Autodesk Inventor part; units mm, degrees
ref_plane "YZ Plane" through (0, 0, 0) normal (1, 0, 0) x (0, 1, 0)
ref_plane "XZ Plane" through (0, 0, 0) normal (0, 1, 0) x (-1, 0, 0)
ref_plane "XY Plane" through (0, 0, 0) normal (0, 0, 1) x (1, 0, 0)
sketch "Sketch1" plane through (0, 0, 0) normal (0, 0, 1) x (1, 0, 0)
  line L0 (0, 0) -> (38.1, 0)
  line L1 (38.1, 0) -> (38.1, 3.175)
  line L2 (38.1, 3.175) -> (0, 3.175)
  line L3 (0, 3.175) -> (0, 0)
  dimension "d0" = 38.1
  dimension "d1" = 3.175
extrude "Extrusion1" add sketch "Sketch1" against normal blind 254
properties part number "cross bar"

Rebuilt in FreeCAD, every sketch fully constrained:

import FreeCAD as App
import Part
import Sketcher

V = App.Vector
Q = App.Units.Quantity


def add_polygon(sketch, points):
    """Adds a closed chain of lines whose ends are joined by coincident constraints."""
    first, n = sketch.GeometryCount, len(points)
    for a, b in zip(points, points[1:] + points[:1]):
        sketch.addGeometry(Part.LineSegment(App.Vector(*a, 0), App.Vector(*b, 0)), False)
    for i in range(n):
        sketch.addConstraint(Sketcher.Constraint("Coincident", first + i, 2, first + (i + 1) % n, 1))

doc = App.newDocument("Part")
params = doc.addObject("Spreadsheet::Sheet", "Params")
for row, (alias, value) in enumerate([
    ("sketch1_width", "1.5 in"),
    ("sketch1_height", "0.125 in"),
    ("pad1_length", "10 in"),
], start=1):
    params.set(f"A{row}", alias)
    params.set(f"B{row}", "=" + value)
    params.setAlias(f"B{row}", alias)

body = doc.addObject("PartDesign::Body", "Body")

sketch1 = body.newObject("Sketcher::SketchObject", "Sketch")
sketch1.AttachmentSupport = (doc.getObject("XY_Plane"), [""])
sketch1.MapMode = "FlatFace"
add_polygon(sketch1, [(0, 3.175), (0, 0), (38.1, 0), (38.1, 3.175)])
sketch1.addConstraint(Sketcher.Constraint("Vertical", 0))
sketch1.addConstraint(Sketcher.Constraint("Horizontal", 1))
sketch1.addConstraint(Sketcher.Constraint("Vertical", 2))
sketch1.addConstraint(Sketcher.Constraint("Horizontal", 3))
sketch1.addConstraint(Sketcher.Constraint("Coincident", 0, 2, -1, 1))
sketch1.addConstraint(Sketcher.Constraint("DistanceX", 1, 1, 1, 2, Q("1.5 in")))
sketch1.addConstraint(Sketcher.Constraint("DistanceY", 0, 2, 0, 1, Q("0.125 in")))
sketch1.setExpression("Constraints[9]", "Params.sketch1_width")
sketch1.setExpression("Constraints[10]", "Params.sketch1_height")
pad1 = body.newObject("PartDesign::Pad", "Pad")
pad1.Profile = sketch1
pad1.setExpression("Length", "Params.pad1_length")
pad1.Reversed = True

doc.recompute()
